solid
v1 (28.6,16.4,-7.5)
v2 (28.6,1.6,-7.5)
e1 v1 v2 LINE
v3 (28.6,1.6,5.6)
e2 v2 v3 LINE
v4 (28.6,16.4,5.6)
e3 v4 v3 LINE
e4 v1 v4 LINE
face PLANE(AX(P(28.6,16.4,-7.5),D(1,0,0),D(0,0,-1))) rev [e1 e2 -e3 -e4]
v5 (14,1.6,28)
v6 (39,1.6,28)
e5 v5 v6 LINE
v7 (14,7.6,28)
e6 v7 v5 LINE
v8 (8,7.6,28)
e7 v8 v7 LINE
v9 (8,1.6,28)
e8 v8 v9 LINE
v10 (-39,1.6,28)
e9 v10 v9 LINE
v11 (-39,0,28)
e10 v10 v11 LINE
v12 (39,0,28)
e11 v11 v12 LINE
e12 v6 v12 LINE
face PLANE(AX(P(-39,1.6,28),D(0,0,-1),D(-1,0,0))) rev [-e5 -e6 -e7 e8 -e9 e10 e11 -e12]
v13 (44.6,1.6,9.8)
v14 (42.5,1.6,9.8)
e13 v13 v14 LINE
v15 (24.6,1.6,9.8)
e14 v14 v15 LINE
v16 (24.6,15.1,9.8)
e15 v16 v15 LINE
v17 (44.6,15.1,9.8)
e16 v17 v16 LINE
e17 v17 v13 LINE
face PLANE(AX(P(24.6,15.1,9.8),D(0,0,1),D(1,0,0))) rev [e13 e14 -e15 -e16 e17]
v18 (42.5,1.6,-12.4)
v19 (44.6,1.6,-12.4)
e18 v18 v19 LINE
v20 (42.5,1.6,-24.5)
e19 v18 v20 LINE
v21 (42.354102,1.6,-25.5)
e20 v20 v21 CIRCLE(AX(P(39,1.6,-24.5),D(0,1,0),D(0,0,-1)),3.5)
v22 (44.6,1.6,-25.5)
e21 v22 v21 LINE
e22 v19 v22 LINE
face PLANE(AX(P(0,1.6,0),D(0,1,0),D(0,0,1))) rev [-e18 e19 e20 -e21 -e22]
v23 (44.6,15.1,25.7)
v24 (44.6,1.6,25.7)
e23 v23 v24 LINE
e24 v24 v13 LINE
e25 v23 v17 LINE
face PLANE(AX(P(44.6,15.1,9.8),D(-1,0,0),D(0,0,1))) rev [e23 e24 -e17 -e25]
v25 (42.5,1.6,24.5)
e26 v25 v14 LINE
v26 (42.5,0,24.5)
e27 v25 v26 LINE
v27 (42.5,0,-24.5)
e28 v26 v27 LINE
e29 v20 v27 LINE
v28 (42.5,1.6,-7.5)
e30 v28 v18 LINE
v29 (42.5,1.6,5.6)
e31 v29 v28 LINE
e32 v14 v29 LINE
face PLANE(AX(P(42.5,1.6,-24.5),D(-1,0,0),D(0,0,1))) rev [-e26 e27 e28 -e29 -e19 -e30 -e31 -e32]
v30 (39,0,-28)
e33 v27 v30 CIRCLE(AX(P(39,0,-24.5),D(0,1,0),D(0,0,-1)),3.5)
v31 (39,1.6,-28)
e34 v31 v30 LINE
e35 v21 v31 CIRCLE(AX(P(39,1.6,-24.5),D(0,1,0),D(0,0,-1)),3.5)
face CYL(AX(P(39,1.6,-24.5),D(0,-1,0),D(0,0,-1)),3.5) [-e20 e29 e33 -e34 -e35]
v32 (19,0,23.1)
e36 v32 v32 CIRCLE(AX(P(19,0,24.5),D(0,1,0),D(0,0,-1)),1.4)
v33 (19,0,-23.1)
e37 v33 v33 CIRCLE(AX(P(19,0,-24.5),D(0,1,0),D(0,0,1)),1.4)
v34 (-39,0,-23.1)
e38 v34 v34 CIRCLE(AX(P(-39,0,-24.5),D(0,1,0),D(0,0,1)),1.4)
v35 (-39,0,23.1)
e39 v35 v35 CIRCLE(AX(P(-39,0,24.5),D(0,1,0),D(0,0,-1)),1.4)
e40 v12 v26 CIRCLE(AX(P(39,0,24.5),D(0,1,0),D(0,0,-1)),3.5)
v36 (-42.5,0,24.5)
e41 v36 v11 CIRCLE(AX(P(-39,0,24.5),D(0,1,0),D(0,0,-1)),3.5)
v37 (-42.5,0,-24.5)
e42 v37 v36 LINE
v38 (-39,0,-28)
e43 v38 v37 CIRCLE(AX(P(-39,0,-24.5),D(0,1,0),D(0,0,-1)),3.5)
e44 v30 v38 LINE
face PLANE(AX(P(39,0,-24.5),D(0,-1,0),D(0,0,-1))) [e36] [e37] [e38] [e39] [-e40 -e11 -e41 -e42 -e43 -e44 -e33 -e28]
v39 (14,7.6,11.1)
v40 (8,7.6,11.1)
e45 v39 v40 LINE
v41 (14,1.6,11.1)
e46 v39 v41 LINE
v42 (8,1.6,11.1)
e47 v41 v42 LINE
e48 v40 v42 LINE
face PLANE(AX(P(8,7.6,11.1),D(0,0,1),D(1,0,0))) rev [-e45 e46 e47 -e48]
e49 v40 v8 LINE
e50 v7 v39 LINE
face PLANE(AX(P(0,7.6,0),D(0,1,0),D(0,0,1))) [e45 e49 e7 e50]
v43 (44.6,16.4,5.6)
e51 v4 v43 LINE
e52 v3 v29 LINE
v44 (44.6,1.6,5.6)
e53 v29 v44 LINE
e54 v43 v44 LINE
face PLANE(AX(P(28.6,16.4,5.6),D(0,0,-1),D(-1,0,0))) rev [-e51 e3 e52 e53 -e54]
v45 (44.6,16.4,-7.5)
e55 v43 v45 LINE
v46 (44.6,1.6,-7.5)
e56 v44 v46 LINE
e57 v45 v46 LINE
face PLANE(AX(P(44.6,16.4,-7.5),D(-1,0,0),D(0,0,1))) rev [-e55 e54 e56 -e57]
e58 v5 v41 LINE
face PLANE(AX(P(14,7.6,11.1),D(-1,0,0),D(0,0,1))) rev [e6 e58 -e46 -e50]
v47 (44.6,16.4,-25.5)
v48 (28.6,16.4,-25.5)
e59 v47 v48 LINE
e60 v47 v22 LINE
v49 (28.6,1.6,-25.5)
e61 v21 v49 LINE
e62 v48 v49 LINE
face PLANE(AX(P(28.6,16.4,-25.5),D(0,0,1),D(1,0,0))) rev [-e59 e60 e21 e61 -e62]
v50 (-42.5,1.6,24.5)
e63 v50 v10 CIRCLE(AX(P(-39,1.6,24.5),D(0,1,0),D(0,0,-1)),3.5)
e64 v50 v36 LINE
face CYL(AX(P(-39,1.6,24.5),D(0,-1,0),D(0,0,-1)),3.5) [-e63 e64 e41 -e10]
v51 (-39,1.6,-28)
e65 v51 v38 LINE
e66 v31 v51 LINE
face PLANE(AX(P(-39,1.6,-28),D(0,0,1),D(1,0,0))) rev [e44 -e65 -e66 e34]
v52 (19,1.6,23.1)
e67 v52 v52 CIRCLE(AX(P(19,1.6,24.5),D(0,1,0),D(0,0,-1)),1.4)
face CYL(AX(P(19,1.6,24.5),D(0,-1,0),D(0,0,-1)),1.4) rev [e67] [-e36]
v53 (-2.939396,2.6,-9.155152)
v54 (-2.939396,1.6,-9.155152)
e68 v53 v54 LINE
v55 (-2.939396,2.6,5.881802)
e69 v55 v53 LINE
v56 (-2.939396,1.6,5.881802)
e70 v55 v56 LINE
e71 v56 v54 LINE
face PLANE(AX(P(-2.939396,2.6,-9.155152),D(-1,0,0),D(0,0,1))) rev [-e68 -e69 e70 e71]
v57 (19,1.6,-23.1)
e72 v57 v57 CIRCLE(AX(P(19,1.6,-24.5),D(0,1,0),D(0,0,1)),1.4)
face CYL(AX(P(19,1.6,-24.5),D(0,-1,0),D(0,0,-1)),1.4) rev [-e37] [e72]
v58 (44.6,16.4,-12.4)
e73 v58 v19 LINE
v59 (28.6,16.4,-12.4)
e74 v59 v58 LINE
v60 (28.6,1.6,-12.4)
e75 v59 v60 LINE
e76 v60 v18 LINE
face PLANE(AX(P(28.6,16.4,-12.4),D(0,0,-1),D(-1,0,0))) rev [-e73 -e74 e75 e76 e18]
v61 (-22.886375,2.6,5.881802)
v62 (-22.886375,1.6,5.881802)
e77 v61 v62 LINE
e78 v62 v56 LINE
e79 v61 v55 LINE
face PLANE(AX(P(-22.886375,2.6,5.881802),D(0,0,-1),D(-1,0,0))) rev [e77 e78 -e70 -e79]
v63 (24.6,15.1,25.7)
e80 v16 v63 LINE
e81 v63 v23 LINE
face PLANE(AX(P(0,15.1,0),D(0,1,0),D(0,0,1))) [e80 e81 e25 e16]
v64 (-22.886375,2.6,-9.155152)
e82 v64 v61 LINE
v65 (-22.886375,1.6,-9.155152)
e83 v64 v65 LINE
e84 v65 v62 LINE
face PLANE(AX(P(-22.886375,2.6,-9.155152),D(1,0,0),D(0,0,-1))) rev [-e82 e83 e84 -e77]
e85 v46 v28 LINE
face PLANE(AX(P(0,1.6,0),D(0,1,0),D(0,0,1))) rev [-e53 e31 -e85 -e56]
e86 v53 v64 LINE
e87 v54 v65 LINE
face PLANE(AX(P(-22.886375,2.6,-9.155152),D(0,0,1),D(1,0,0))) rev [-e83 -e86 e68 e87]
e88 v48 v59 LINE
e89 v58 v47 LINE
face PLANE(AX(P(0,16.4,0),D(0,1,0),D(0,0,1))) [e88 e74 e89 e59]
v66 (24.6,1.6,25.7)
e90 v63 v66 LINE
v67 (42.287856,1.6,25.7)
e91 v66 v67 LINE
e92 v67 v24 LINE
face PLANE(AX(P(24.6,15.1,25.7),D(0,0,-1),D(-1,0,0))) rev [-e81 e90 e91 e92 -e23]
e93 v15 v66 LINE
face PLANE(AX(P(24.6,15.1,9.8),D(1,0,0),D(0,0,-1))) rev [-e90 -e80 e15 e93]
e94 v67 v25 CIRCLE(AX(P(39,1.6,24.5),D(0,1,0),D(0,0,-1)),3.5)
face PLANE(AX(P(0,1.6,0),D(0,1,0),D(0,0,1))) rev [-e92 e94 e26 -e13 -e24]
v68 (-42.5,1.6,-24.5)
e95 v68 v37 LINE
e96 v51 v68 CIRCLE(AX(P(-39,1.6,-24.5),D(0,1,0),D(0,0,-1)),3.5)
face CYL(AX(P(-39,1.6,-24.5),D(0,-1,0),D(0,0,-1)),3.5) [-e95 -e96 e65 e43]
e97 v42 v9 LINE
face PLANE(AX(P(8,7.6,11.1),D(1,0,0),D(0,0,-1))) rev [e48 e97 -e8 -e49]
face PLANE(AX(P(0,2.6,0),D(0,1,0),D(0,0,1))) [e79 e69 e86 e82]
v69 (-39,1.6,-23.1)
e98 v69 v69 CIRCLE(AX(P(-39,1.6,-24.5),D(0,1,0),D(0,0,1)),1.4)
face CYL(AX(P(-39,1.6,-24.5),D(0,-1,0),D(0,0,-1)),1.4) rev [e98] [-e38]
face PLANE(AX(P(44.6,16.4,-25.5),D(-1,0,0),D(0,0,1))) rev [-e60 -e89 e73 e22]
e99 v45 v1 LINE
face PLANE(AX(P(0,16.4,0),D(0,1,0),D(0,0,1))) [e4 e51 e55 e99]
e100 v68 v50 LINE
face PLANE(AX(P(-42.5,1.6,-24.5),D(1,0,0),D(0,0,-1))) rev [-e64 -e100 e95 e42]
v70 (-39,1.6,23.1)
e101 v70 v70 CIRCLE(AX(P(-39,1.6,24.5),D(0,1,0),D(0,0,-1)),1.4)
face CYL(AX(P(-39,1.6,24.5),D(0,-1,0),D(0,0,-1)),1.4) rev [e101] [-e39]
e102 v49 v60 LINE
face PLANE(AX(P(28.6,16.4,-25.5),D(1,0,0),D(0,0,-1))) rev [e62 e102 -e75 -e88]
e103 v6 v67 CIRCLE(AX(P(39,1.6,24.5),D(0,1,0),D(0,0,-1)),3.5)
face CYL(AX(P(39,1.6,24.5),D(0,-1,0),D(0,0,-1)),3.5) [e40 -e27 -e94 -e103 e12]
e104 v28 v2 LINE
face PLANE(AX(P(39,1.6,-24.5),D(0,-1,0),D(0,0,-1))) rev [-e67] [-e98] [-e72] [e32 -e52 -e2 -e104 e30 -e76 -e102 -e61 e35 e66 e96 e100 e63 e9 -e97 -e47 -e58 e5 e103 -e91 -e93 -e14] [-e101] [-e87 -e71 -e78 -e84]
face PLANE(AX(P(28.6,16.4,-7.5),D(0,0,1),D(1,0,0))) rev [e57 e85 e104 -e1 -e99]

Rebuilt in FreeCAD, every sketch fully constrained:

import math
import FreeCAD as App
import Part
import Sketcher

V = App.Vector
Q = App.Units.Quantity


def add_polygon(sketch, points):
    """Adds a closed chain of lines whose ends are joined by coincident constraints."""
    first, n = sketch.GeometryCount, len(points)
    for a, b in zip(points, points[1:] + points[:1]):
        sketch.addGeometry(Part.LineSegment(App.Vector(*a, 0), App.Vector(*b, 0)), False)
    for i in range(n):
        sketch.addConstraint(Sketcher.Constraint("Coincident", first + i, 2, first + (i + 1) % n, 1))

doc = App.newDocument("Part")
body = doc.addObject("PartDesign::Body", "Body")

sketch1 = doc.addObject("Sketcher::SketchObject", "Sketch")
body.addObject(sketch1)
sketch1.AttachmentSupport = (doc.XZ_Plane, [""])
sketch1.MapMode = "FlatFace"
sketch1.addGeometry([
    Part.LineSegment(V(39, -28, 0), V(-39, -28, 0)),
    Part.ArcOfCircle(Part.Circle(V(-39, -24.5, 0), V(0, 0, 1), 3.5), math.radians(-180), math.radians(-90)),
    Part.LineSegment(V(-42.5, -24.5, 0), V(-42.5, 24.5, 0)),
    Part.ArcOfCircle(Part.Circle(V(-39, 24.5, 0), V(0, 0, 1), 3.5), math.radians(90), math.radians(180)),
    Part.LineSegment(V(-39, 28, 0), V(39, 28, 0)),
    Part.ArcOfCircle(Part.Circle(V(39, 24.5, 0), V(0, 0, 1), 3.5), math.radians(0), math.radians(90)),
    Part.LineSegment(V(42.5, 24.5, 0), V(42.5, -24.5, 0)),
    Part.ArcOfCircle(Part.Circle(V(39, -24.5, 0), V(0, 0, 1), 3.5), math.radians(-90), math.radians(0)),
    Part.Circle(V(19, 24.5, 0), V(0, 0, 1), 1.4),
    Part.Circle(V(-39, 24.5, 0), V(0, 0, 1), 1.4),
    Part.Circle(V(19, -24.5, 0), V(0, 0, 1), 1.4),
    Part.Circle(V(-39, -24.5, 0), V(0, 0, 1), 1.4),
], False)
sketch1.addConstraint([
    Sketcher.Constraint("Tangent", 0, 2, 1, 2),
    Sketcher.Constraint("Tangent", 1, 1, 2, 1),
    Sketcher.Constraint("Tangent", 2, 2, 3, 2),
    Sketcher.Constraint("Tangent", 3, 1, 4, 1),
    Sketcher.Constraint("Tangent", 4, 2, 5, 2),
    Sketcher.Constraint("Tangent", 5, 1, 6, 1),
    Sketcher.Constraint("Tangent", 6, 2, 7, 2),
    Sketcher.Constraint("Tangent", 7, 1, 0, 1),
    Sketcher.Constraint("Horizontal", 0),
    Sketcher.Constraint("Vertical", 2),
    Sketcher.Constraint("Horizontal", 4),
    Sketcher.Constraint("Vertical", 6),
    Sketcher.Constraint("Coincident", 9, 3, 3, 3),
    Sketcher.Constraint("Coincident", 11, 3, 1, 3),
    Sketcher.Constraint("Equal", 1, 3),
    Sketcher.Constraint("Equal", 3, 5),
    Sketcher.Constraint("Equal", 5, 7),
    Sketcher.Constraint("Equal", 8, 9),
    Sketcher.Constraint("Equal", 9, 10),
    Sketcher.Constraint("Equal", 10, 11),
    Sketcher.Constraint("Symmetric", 1, 3, 5, 3, -1, 1),
    Sketcher.Constraint("Symmetric", 8, 3, 10, 3, -1),
    Sketcher.Constraint("Horizontal", 5, 3, 8, 3),
    Sketcher.Constraint("Diameter", 8, Q("2.8 mm")),
    Sketcher.Constraint("Radius", 1, Q("3.5 mm")),
    Sketcher.Constraint("DistanceX", 0, 2, 0, 1, Q("78 mm")),
    Sketcher.Constraint("DistanceY", 2, 1, 2, 2, Q("49 mm")),
    Sketcher.Constraint("DistanceX", -1, 1, 8, 3, Q("19 mm")),
])
pad1 = doc.addObject("PartDesign::Pad", "Pad")
body.addObject(pad1)
pad1.Profile = sketch1
pad1.Length = 1.6
pad1.Reversed = True

sketch2 = doc.addObject("Sketcher::SketchObject", "Sketch001")
body.addObject(sketch2)
sketch2.AttachmentSupport = (doc.XZ_Plane, [""])
sketch2.MapMode = "FlatFace"
sketch2.AttachmentOffset = App.Placement(V(0, 0, -1.6), App.Rotation())
add_polygon(sketch2, [(25, 10), (25, 26), (45, 26), (45, 10)])
sketch2.addConstraint([
    Sketcher.Constraint("Vertical", 0),
    Sketcher.Constraint("Horizontal", 1),
    Sketcher.Constraint("Vertical", 2),
    Sketcher.Constraint("Horizontal", 3),
    Sketcher.Constraint("DistanceX", 1, 1, 1, 2, Q("20 mm")),
    Sketcher.Constraint("DistanceY", 0, 1, 0, 2, Q("15.9 mm")),
    Sketcher.Constraint("DistanceX", -1, 1, 0, 2, Q("24.6 mm")),
    Sketcher.Constraint("DistanceY", -1, 1, 0, 2, Q("25.7 mm")),
])
pad2 = doc.addObject("PartDesign::Pad", "Pad001")
body.addObject(pad2)
pad2.Profile = sketch2
pad2.Length = 13.5
pad2.Reversed = True

sketch3 = doc.addObject("Sketcher::SketchObject", "Sketch002")
body.addObject(sketch3)
sketch3.AttachmentSupport = (doc.XZ_Plane, [""])
sketch3.MapMode = "FlatFace"
sketch3.AttachmentOffset = App.Placement(V(0, 0, -1.6), App.Rotation())
add_polygon(sketch3, [(29, -8), (29, 6), (45, 6), (45, -8)])
add_polygon(sketch3, [(29, -26), (29, -12), (45, -12), (45, -26)])
sketch3.addConstraint([
    Sketcher.Constraint("Vertical", 0),
    Sketcher.Constraint("Horizontal", 1),
    Sketcher.Constraint("Vertical", 2),
    Sketcher.Constraint("Horizontal", 3),
    Sketcher.Constraint("Vertical", 4),
    Sketcher.Constraint("Horizontal", 5),
    Sketcher.Constraint("Vertical", 6),
    Sketcher.Constraint("Horizontal", 7),
    Sketcher.Constraint("Vertical", 3, 2, 4, 2),
    Sketcher.Constraint("Vertical", 2, 2, 5, 2),
    Sketcher.Constraint("Equal", 2, 4),
    Sketcher.Constraint("DistanceX", 1, 1, 1, 2, Q("16 mm")),
    Sketcher.Constraint("DistanceY", 0, 1, 0, 2, Q("13.1 mm")),
    Sketcher.Constraint("DistanceY", 4, 2, 0, 2, Q("18 mm")),
    Sketcher.Constraint("DistanceX", -1, 1, 0, 2, Q("28.6 mm")),
    Sketcher.Constraint("DistanceY", -1, 1, 0, 2, Q("5.6 mm")),
])
pad3 = doc.addObject("PartDesign::Pad", "Pad002")
body.addObject(pad3)
pad3.Profile = sketch3
pad3.Length = 14.8
pad3.Reversed = True

sketch4 = doc.addObject("Sketcher::SketchObject", "Sketch003")
body.addObject(sketch4)
sketch4.AttachmentSupport = (doc.XZ_Plane, [""])
sketch4.MapMode = "FlatFace"
sketch4.AttachmentOffset = App.Placement(V(0, 0, -1.6), App.Rotation())
add_polygon(sketch4, [(8, 11), (8, 28), (14, 28), (14, 11)])
sketch4.addConstraint([
    Sketcher.Constraint("Vertical", 0),
    Sketcher.Constraint("Horizontal", 1),
    Sketcher.Constraint("Vertical", 2),
    Sketcher.Constraint("Horizontal", 3),
    Sketcher.Constraint("DistanceX", 1, 1, 1, 2, Q("6 mm")),
    Sketcher.Constraint("DistanceY", 0, 1, 0, 2, Q("16.9 mm")),
    Sketcher.Constraint("DistanceX", -1, 1, 0, 2, Q("8 mm")),
    Sketcher.Constraint("DistanceY", -1, 1, 0, 2, Q("28 mm")),
])
pad4 = doc.addObject("PartDesign::Pad", "Pad003")
body.addObject(pad4)
pad4.Profile = sketch4
pad4.Length = 6
pad4.Reversed = True

sketch5 = doc.addObject("Sketcher::SketchObject", "Sketch004")
body.addObject(sketch5)
sketch5.AttachmentSupport = (doc.XZ_Plane, [""])
sketch5.MapMode = "FlatFace"
sketch5.AttachmentOffset = App.Placement(V(0, 0, -1.6), App.Rotation())
add_polygon(sketch5, [(-23, -9), (-23, 6), (-3, 6), (-3, -9)])
sketch5.addConstraint([
    Sketcher.Constraint("Vertical", 0),
    Sketcher.Constraint("Horizontal", 1),
    Sketcher.Constraint("Vertical", 2),
    Sketcher.Constraint("Horizontal", 3),
    Sketcher.Constraint("DistanceX", 1, 1, 1, 2, Q("19.94698 mm")),
    Sketcher.Constraint("DistanceY", -1, 1, 0, 2, Q("5.881802 mm")),
    Sketcher.Constraint("DistanceY", 0, 1, 0, 2, Q("15.036954 mm")),
    Sketcher.Constraint("DistanceX", 0, 2, -1, 1, Q("22.886375 mm")),
])
pad5 = doc.addObject("PartDesign::Pad", "Pad004")
body.addObject(pad5)
pad5.Profile = sketch5
pad5.Length = 1
pad5.Reversed = True

doc.recompute()
